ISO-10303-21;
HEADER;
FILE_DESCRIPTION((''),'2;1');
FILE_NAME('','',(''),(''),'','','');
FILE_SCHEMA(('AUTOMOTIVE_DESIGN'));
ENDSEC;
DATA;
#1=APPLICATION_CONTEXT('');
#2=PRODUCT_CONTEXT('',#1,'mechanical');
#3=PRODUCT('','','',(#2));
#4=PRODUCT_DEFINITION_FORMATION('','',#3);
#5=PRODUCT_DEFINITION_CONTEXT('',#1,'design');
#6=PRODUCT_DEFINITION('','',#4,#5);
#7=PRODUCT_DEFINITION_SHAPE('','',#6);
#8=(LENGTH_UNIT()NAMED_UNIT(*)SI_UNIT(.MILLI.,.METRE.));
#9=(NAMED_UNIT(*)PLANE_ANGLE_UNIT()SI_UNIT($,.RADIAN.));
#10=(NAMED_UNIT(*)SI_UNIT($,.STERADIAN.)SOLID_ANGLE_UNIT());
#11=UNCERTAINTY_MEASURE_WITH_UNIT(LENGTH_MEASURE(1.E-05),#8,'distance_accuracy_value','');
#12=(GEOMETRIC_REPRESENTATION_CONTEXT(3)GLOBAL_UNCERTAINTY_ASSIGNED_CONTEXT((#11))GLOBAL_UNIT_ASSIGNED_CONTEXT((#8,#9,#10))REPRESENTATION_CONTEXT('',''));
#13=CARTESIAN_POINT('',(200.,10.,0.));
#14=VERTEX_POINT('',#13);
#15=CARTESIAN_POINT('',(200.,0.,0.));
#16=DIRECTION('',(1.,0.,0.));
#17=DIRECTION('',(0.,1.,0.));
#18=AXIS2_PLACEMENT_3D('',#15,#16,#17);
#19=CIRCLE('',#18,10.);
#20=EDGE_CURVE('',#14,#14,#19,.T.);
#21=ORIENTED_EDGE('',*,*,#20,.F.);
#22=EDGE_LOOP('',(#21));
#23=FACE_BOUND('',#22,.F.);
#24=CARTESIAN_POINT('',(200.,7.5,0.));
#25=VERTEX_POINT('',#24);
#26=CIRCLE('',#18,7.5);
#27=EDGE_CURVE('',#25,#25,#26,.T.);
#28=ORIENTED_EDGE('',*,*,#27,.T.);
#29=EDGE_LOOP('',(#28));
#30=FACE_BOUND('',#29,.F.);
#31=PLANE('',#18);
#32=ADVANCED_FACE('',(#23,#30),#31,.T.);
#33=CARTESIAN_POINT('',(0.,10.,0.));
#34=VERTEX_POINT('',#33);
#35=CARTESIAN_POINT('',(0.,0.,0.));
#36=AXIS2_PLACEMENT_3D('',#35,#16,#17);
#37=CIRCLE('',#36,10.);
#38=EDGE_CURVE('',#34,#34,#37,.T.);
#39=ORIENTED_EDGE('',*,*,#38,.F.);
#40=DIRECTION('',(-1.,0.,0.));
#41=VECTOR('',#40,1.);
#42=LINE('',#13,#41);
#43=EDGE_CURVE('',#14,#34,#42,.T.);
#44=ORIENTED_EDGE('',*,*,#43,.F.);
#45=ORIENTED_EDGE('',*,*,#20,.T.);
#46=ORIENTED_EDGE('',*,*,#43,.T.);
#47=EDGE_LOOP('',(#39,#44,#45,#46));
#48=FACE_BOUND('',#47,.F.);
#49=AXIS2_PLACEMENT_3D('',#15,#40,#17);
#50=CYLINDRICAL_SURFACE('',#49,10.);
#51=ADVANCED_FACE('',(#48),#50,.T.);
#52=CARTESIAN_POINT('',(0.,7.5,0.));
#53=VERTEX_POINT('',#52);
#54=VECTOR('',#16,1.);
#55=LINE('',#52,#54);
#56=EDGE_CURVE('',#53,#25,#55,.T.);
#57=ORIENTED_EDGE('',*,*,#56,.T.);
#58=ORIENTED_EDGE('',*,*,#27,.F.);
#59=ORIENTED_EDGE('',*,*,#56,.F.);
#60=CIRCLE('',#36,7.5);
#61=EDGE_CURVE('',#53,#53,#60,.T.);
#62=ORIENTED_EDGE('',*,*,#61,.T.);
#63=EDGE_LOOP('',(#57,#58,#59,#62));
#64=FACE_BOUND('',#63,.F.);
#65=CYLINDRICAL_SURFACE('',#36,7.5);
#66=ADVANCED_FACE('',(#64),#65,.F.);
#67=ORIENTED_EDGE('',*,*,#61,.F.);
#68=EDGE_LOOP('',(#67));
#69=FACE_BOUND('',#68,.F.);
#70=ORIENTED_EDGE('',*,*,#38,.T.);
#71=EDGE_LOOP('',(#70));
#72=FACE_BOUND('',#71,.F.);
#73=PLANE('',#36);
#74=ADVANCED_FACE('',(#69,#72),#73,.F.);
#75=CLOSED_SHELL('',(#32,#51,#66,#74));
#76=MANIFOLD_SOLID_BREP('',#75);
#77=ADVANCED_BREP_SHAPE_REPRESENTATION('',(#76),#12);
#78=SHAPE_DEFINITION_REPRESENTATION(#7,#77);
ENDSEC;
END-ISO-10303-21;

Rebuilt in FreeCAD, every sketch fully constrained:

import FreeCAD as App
import Part
import Sketcher
Q = App.Units.Quantity


def add_polygon(sketch, points):
    """Adds a closed chain of lines whose ends are joined by coincident constraints."""
    first, n = sketch.GeometryCount, len(points)
    for a, b in zip(points, points[1:] + points[:1]):
        sketch.addGeometry(Part.LineSegment(App.Vector(*a, 0), App.Vector(*b, 0)), False)
    for i in range(n):
        sketch.addConstraint(Sketcher.Constraint("Coincident", first + i, 2, first + (i + 1) % n, 1))

doc = App.newDocument("Part")
body = doc.addObject("PartDesign::Body", "Body")

# Sketch on XY plane
sketch1 = doc.addObject("Sketcher::SketchObject", "Sketch")
body.addObject(sketch1)
sketch1.AttachmentSupport = (doc.XY_Plane, [""])
sketch1.MapMode = "FlatFace"
add_polygon(sketch1, [(0, 10), (0, 7.5), (200, 7.5), (200, 10)])  # lines 0-3
sketch1.addConstraint(Sketcher.Constraint("Vertical", 0))
sketch1.addConstraint(Sketcher.Constraint("Horizontal", 1))
sketch1.addConstraint(Sketcher.Constraint("Vertical", 2))
sketch1.addConstraint(Sketcher.Constraint("Horizontal", 3))
sketch1.addConstraint(Sketcher.Constraint("PointOnObject", 0, 2, -2))
sketch1.addConstraint(Sketcher.Constraint("DistanceX", 1, 1, 1, 2, Q("200 mm")))
sketch1.addConstraint(Sketcher.Constraint("DistanceY", 0, 2, 0, 1, Q("2.5 mm")))
sketch1.addConstraint(Sketcher.Constraint("DistanceY", -1, 1, 2, 2, Q("10 mm")))
revolution = doc.addObject("PartDesign::Revolution", "Revolution")
body.addObject(revolution)
revolution.Profile = sketch1
revolution.ReferenceAxis = (sketch1, ["H_Axis"])
revolution.Angle = 360

doc.recompute()
